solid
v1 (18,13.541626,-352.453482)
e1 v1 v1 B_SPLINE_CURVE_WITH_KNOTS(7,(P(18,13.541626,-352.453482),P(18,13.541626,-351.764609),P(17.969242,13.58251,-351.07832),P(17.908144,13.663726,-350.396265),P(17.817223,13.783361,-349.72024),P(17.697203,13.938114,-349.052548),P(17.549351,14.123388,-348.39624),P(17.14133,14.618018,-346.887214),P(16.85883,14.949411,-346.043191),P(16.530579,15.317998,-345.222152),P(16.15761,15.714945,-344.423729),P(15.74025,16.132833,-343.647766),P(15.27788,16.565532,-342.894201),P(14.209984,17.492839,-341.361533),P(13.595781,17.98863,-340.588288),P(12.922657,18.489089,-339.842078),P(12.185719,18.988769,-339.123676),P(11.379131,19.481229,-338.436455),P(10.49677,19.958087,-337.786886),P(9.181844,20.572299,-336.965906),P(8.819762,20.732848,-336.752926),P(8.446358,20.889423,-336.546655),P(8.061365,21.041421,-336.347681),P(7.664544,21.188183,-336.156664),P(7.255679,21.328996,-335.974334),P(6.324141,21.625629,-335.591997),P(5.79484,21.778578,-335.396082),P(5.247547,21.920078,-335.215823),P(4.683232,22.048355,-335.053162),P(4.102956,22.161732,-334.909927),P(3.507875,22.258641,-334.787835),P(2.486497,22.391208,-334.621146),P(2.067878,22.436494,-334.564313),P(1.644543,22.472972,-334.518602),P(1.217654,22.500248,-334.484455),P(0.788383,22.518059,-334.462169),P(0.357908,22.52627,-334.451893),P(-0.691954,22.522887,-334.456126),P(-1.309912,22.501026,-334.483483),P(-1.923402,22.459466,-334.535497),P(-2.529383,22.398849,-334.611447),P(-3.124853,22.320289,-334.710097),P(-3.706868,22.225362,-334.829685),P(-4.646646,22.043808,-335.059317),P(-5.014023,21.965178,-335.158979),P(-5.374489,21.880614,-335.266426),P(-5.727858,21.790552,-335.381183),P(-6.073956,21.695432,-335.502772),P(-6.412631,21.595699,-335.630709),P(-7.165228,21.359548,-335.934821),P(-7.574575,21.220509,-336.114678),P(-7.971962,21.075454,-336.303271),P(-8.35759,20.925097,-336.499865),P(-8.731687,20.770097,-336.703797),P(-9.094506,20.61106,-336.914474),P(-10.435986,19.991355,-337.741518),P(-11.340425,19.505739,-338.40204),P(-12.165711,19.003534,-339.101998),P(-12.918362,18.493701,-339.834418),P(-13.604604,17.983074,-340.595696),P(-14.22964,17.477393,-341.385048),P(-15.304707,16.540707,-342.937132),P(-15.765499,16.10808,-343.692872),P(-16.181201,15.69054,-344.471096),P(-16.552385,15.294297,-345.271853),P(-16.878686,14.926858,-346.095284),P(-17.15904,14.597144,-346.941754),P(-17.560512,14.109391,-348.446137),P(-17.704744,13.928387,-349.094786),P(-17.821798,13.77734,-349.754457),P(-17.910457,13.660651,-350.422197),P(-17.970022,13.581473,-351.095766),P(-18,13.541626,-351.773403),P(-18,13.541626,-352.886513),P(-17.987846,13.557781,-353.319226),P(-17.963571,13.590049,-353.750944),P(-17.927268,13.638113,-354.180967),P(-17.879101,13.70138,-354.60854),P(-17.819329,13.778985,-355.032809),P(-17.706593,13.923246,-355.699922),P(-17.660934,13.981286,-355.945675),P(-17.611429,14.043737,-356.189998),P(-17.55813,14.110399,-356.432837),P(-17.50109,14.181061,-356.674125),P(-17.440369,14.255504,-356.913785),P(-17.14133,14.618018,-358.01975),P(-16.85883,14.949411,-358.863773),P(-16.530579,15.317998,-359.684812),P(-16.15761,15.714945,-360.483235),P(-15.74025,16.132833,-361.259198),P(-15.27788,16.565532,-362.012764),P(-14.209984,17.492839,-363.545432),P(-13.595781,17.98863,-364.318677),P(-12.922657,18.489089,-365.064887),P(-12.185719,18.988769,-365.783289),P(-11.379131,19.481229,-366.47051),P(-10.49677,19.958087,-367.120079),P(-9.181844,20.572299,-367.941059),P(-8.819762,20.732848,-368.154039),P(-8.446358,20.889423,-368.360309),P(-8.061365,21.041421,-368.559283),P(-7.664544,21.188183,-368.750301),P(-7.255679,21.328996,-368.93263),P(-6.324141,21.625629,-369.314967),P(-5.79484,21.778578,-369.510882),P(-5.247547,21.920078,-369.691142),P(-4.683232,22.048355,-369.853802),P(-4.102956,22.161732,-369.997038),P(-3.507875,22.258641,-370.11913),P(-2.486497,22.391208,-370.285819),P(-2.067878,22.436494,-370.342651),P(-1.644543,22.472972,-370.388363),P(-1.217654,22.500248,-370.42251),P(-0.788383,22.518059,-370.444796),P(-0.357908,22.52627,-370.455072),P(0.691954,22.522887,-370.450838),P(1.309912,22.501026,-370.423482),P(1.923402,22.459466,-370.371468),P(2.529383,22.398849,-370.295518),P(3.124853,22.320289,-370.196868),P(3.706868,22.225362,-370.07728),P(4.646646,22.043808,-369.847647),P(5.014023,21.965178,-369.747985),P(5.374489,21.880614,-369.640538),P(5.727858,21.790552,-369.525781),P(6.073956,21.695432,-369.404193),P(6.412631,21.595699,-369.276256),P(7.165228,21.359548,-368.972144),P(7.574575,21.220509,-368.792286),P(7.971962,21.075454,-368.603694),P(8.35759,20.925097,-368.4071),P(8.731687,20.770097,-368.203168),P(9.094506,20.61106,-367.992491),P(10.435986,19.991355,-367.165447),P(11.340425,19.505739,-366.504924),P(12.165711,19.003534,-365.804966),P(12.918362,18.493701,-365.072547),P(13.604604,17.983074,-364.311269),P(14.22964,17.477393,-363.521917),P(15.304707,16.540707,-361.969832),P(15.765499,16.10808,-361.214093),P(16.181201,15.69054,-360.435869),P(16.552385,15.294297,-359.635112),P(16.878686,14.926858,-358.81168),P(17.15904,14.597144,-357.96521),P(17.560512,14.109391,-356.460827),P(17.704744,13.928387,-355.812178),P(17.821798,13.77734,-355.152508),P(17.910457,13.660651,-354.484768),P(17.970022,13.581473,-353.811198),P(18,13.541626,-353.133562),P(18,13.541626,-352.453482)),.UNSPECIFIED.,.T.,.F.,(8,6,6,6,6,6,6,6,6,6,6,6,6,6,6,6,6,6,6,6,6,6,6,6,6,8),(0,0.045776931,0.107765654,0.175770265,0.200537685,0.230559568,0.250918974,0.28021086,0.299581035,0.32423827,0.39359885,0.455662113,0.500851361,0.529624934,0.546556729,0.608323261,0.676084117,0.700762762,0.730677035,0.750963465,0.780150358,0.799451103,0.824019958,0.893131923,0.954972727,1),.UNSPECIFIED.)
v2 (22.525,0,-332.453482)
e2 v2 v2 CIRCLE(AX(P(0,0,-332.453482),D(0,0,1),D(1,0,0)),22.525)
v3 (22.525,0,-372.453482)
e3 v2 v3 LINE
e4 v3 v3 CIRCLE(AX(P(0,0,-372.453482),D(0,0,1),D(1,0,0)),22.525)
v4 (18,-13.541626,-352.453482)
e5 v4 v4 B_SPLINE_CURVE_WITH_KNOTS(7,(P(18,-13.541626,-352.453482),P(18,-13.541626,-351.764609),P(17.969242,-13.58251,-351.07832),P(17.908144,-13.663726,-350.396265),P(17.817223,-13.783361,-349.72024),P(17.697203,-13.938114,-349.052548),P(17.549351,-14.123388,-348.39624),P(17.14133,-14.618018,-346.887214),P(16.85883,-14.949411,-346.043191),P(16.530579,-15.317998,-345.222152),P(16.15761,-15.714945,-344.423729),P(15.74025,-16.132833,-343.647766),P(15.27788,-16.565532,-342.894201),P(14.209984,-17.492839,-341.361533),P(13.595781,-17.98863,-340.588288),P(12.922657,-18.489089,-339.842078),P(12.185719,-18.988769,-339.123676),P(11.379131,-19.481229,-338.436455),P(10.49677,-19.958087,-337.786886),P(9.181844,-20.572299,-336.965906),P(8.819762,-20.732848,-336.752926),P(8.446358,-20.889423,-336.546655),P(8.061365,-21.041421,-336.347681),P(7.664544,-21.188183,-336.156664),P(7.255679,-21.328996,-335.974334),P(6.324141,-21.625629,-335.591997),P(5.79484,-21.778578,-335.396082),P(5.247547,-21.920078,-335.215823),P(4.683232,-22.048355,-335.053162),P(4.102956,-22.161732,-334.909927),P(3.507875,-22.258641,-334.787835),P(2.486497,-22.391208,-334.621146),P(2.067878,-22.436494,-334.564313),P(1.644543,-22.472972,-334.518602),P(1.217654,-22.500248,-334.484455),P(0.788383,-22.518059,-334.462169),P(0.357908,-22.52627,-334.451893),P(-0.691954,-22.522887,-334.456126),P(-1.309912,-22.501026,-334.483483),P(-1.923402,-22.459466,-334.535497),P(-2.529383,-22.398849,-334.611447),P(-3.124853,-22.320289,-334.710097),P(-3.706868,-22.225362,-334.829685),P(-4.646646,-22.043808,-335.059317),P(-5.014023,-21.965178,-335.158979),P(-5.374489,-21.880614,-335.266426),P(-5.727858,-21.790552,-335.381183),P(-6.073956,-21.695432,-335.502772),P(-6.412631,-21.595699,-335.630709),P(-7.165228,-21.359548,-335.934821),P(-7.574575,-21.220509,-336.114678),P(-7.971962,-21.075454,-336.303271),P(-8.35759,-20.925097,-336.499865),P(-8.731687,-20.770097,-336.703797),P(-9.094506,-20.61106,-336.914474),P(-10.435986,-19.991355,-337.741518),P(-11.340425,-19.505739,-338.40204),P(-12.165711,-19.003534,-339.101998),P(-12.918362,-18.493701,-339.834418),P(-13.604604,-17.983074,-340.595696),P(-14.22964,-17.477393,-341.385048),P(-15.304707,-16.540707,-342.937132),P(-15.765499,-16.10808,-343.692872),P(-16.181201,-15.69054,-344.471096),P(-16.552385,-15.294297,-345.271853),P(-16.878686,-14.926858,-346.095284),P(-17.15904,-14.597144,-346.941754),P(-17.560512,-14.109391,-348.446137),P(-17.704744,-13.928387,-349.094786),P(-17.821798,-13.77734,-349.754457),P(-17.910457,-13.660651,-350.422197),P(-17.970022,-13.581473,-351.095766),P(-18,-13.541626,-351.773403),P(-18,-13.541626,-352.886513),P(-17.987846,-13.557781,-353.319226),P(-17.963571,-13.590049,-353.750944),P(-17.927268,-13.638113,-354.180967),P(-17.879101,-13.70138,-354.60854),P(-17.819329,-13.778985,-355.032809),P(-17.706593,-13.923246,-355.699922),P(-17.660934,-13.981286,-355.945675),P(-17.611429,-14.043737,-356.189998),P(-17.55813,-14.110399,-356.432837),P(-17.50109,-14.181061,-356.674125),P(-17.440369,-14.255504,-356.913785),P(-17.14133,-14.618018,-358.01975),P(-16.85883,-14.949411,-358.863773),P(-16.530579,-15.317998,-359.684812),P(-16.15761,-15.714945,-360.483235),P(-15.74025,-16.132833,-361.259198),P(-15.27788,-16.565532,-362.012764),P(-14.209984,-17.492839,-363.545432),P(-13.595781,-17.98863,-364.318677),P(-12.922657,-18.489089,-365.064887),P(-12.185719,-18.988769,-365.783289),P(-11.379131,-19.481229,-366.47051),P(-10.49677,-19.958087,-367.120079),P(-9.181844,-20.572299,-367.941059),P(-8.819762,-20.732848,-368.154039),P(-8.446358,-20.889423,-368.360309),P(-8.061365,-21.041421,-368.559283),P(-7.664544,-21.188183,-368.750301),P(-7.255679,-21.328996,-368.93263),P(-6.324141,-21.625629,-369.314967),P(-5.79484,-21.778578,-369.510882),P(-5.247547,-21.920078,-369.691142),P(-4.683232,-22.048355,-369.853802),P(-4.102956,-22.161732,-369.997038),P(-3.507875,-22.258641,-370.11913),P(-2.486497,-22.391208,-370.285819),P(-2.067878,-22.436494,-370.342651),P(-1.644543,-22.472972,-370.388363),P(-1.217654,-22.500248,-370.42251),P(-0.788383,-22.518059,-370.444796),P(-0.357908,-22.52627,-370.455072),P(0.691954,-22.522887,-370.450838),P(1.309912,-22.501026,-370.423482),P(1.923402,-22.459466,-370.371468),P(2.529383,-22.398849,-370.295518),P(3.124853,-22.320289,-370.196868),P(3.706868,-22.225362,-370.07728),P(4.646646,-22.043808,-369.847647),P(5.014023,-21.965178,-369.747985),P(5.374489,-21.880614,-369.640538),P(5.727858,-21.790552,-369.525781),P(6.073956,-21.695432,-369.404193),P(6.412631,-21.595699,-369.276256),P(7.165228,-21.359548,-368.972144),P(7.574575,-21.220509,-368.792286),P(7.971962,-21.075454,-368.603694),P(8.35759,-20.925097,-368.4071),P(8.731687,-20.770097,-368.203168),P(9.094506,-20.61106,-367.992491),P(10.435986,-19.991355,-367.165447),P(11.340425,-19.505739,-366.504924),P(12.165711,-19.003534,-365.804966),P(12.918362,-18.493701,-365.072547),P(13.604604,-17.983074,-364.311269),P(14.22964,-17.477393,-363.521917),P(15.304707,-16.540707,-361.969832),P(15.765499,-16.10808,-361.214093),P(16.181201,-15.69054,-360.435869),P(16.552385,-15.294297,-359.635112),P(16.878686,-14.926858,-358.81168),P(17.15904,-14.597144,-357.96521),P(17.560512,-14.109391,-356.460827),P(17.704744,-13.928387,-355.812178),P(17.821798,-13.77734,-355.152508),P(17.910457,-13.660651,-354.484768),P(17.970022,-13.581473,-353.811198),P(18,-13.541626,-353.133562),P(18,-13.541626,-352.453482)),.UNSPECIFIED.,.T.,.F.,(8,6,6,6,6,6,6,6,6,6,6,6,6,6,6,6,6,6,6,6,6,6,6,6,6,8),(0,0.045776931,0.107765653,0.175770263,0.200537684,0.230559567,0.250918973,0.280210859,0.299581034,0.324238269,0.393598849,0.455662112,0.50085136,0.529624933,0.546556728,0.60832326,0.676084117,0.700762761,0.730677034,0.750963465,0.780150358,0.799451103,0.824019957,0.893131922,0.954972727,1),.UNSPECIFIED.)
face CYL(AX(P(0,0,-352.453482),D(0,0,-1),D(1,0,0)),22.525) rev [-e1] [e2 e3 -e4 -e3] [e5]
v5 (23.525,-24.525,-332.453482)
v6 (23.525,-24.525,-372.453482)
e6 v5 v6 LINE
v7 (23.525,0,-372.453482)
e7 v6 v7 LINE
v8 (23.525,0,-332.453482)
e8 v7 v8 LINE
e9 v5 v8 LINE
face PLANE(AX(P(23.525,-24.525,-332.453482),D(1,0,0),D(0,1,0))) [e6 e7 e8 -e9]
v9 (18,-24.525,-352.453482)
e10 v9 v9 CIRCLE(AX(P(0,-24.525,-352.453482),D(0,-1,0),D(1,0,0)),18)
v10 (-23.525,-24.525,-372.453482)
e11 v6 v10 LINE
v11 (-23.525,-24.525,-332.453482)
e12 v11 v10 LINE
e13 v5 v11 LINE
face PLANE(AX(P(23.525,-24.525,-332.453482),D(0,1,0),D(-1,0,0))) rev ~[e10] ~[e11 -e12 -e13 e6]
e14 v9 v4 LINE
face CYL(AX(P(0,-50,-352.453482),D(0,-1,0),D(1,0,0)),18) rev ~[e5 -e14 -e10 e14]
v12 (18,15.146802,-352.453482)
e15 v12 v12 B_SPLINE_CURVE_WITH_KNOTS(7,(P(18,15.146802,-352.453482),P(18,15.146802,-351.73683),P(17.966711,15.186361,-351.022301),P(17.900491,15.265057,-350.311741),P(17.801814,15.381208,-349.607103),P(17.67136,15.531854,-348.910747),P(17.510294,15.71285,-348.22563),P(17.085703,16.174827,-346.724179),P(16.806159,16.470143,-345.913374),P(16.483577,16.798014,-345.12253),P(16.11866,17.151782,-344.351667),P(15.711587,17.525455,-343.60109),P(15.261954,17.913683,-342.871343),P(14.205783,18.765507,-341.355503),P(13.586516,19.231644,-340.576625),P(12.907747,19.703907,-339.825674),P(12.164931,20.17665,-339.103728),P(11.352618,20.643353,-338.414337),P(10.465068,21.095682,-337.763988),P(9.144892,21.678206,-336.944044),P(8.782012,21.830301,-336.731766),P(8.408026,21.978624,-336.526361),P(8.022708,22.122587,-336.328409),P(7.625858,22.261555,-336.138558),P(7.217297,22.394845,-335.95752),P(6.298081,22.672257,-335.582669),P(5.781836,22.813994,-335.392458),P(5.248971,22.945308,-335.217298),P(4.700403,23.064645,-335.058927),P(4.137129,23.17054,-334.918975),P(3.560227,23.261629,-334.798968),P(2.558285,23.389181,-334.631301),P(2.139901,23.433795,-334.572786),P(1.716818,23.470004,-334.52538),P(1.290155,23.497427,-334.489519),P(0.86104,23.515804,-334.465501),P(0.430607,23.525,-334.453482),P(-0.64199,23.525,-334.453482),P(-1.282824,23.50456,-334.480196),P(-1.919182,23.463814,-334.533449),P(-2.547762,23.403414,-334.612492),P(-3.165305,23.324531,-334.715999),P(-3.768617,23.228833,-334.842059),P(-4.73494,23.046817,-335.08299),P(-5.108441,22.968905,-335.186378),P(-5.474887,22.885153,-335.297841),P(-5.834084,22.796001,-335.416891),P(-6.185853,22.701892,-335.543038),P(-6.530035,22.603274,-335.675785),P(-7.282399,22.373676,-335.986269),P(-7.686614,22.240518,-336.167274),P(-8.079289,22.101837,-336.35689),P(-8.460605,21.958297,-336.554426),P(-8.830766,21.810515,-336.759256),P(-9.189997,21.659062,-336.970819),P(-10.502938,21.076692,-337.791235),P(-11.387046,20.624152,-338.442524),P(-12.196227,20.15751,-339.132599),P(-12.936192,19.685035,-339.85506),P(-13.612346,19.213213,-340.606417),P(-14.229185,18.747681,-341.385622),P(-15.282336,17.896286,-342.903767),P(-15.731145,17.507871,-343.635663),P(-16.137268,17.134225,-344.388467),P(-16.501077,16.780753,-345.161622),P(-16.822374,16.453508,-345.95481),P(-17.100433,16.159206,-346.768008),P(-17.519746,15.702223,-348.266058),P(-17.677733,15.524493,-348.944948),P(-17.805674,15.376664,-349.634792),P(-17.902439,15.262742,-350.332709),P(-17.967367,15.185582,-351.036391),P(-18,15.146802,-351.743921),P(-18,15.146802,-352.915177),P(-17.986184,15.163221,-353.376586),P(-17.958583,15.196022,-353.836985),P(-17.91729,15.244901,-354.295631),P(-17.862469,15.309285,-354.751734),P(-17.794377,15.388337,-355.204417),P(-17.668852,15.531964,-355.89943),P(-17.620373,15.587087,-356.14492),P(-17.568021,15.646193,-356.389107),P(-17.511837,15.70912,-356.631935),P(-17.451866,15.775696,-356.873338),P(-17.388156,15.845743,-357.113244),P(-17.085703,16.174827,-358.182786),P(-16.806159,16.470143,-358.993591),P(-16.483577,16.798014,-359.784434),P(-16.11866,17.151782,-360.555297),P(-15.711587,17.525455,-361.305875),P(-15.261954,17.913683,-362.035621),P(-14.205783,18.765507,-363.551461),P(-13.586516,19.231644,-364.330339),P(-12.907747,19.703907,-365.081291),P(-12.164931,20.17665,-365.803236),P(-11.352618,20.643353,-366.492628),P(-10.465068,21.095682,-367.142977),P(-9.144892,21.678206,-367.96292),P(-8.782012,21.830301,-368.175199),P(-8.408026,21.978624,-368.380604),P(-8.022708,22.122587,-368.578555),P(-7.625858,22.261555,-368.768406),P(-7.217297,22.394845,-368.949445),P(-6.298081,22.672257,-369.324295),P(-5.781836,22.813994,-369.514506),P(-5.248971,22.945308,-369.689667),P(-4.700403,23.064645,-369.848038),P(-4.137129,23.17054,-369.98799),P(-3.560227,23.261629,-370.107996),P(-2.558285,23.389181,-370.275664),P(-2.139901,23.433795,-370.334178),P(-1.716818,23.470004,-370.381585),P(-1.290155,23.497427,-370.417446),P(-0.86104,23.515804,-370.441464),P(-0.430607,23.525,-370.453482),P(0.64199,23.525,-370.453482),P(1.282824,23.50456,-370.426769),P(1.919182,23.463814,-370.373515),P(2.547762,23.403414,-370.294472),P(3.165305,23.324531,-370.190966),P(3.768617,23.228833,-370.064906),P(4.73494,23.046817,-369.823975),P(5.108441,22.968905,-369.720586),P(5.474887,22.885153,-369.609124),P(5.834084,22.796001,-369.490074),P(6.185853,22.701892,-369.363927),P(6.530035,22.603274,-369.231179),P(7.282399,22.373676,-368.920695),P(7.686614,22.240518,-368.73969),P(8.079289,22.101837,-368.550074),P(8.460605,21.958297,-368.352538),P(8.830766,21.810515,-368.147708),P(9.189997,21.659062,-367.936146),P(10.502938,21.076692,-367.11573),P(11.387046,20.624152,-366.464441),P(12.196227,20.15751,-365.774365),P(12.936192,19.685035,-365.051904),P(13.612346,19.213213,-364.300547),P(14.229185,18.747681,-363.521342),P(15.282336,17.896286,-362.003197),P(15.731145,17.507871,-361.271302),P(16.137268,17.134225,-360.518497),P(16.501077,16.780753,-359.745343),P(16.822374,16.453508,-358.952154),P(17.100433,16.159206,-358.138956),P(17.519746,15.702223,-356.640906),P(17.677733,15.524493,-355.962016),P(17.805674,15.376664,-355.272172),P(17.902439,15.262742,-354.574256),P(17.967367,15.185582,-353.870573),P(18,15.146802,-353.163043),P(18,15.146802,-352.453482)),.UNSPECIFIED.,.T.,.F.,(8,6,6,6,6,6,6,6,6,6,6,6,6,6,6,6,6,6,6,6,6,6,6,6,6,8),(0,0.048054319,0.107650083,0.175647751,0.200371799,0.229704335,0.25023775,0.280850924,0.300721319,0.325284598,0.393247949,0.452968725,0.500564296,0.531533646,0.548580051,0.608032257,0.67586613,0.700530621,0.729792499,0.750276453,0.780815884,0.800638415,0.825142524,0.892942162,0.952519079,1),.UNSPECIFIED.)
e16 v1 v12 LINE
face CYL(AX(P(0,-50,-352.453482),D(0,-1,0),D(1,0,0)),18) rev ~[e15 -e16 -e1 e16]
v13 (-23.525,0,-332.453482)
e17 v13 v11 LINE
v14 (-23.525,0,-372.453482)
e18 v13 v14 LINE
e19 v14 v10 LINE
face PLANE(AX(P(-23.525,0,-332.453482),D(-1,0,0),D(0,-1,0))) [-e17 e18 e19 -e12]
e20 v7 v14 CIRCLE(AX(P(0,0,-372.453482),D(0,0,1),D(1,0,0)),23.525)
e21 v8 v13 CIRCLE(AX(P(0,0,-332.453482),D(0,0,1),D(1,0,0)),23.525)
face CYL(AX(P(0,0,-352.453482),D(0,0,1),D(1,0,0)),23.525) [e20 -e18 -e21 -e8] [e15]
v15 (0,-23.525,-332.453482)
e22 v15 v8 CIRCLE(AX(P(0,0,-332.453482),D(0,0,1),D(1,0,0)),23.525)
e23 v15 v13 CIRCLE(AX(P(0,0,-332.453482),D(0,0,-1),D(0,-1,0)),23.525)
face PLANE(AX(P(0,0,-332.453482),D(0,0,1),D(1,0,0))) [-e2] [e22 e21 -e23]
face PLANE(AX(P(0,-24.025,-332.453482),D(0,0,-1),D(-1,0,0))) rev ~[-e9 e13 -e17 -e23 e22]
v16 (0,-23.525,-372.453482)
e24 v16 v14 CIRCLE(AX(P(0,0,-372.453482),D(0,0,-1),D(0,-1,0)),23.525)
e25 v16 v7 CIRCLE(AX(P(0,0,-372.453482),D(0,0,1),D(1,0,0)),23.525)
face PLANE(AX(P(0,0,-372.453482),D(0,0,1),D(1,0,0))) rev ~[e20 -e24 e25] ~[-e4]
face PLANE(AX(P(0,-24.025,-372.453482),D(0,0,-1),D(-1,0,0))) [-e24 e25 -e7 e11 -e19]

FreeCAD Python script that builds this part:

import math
import FreeCAD as App
import Part
import Sketcher
Q = App.Units.Quantity

doc = App.newDocument("Part")
params = doc.addObject("Spreadsheet::Sheet", "Params")
for row, (alias, value) in enumerate([
    ("sketch1_diameter", "47.05 mm"),
    ("sketch1_diameter2", "45.05 mm"),
    ("pad1_length", "40 mm"),
    ("pad2_length", "40 mm"),
    ("sketch3_diameter", "36 mm"),
], start=1):
    params.set(f"A{row}", alias)
    params.set(f"B{row}", "=" + value)
    params.setAlias(f"B{row}", alias)

body = doc.addObject("PartDesign::Body", "Body")

# Sketch on XY plane
sketch1 = body.newObject("Sketcher::SketchObject", "Sketch")
sketch1.AttachmentSupport = (doc.getObject("XY_Plane"), [""])
sketch1.MapMode = "FlatFace"
sketch1.AttachmentOffset = App.Placement(App.Vector(0, 0, -352.453482), App.Rotation())
sketch1.addGeometry(Part.Circle(App.Vector(0, 0, 0), App.Vector(0, 0, 1), 24), False)
sketch1.addGeometry(Part.Circle(App.Vector(0, 0, 0), App.Vector(0, 0, 1), 23), False)
sketch1.addConstraint(Sketcher.Constraint("Coincident", 0, 3, -1, 1))
sketch1.addConstraint(Sketcher.Constraint("Coincident", 1, 3, -1, 1))
sketch1.addConstraint(Sketcher.Constraint("Diameter", 0, Q("47.05 mm")))
sketch1.addConstraint(Sketcher.Constraint("Diameter", 1, Q("45.05 mm")))
sketch1.setExpression("Constraints[2]", "Params.sketch1_diameter")
sketch1.setExpression("Constraints[3]", "Params.sketch1_diameter2")
pad1 = body.newObject("PartDesign::Pad", "Pad")
pad1.Profile = sketch1
pad1.setExpression("Length", "Params.pad1_length")
pad1.Midplane = True

# Sketch on XY plane
sketch2 = body.newObject("Sketcher::SketchObject", "Sketch001")
sketch2.AttachmentSupport = (doc.getObject("XY_Plane"), [""])
sketch2.MapMode = "FlatFace"
sketch2.AttachmentOffset = App.Placement(App.Vector(0, 0, -332.453482), App.Rotation())
sketch2.addGeometry(Part.LineSegment(App.Vector(24, -25, 0), App.Vector(24, 0, 0)), False)
sketch2.addGeometry(Part.ArcOfCircle(Part.Circle(App.Vector(0, 0, 0), App.Vector(0, 0, 1), 24), math.radians(-90), math.radians(0)), False)
sketch2.addGeometry(Part.ArcOfCircle(Part.Circle(App.Vector(0, 0, 0), App.Vector(0, 0, 1), 24), math.radians(-180), math.radians(-90)), False)
sketch2.addGeometry(Part.LineSegment(App.Vector(-24, 0, 0), App.Vector(-24, -25, 0)), False)
sketch2.addGeometry(Part.LineSegment(App.Vector(-24, -25, 0), App.Vector(24, -25, 0)), False)
sketch2.addConstraint(Sketcher.Constraint("Tangent", 0, 2, 1, 2))
sketch2.addConstraint(Sketcher.Constraint("Tangent", 1, 1, 2, 2))
sketch2.addConstraint(Sketcher.Constraint("Tangent", 2, 1, 3, 1))
sketch2.addConstraint(Sketcher.Constraint("Coincident", 3, 2, 4, 1))
sketch2.addConstraint(Sketcher.Constraint("Coincident", 4, 2, 0, 1))
sketch2.addConstraint(Sketcher.Constraint("Vertical", 0))
sketch2.addConstraint(Sketcher.Constraint("Vertical", 3))
sketch2.addConstraint(Sketcher.Constraint("Horizontal", 4))
sketch2.addConstraint(Sketcher.Constraint("Coincident", 1, 3, -1, 1))
sketch2.addConstraint(Sketcher.Constraint("Equal", 1, 2))
sketch2.addConstraint(Sketcher.Constraint("PointOnObject", 1, 1, -2))
sketch2.addConstraint(Sketcher.Constraint("Radius", 1, Q("23.525 mm")))
sketch2.addConstraint(Sketcher.Constraint("DistanceY", 3, 2, 1, 1, Q("1 mm")))
pad2 = body.newObject("PartDesign::Pad", "Pad001")
pad2.Profile = sketch2
pad2.setExpression("Length", "Params.pad2_length")
pad2.Reversed = True

# Sketch on XZ plane
sketch3 = body.newObject("Sketcher::SketchObject", "Sketch002")
sketch3.AttachmentSupport = (doc.getObject("XZ_Plane"), [""])
sketch3.MapMode = "FlatFace"
sketch3.AttachmentOffset = App.Placement(App.Vector(0, 0, 50), App.Rotation())
sketch3.addGeometry(Part.Circle(App.Vector(0, -352, 0), App.Vector(0, 0, 1), 18), False)
sketch3.addConstraint(Sketcher.Constraint("PointOnObject", 0, 3, -2))
sketch3.addConstraint(Sketcher.Constraint("Diameter", 0, Q("36 mm")))
sketch3.addConstraint(Sketcher.Constraint("DistanceY", 0, 3, -1, 1, Q("352.453482 mm")))
sketch3.setExpression("Constraints[1]", "Params.sketch3_diameter")
pocket1 = body.newObject("PartDesign::Pocket", "Pocket")
pocket1.Profile = sketch3
pocket1.Type = "ThroughAll"

doc.recompute()
